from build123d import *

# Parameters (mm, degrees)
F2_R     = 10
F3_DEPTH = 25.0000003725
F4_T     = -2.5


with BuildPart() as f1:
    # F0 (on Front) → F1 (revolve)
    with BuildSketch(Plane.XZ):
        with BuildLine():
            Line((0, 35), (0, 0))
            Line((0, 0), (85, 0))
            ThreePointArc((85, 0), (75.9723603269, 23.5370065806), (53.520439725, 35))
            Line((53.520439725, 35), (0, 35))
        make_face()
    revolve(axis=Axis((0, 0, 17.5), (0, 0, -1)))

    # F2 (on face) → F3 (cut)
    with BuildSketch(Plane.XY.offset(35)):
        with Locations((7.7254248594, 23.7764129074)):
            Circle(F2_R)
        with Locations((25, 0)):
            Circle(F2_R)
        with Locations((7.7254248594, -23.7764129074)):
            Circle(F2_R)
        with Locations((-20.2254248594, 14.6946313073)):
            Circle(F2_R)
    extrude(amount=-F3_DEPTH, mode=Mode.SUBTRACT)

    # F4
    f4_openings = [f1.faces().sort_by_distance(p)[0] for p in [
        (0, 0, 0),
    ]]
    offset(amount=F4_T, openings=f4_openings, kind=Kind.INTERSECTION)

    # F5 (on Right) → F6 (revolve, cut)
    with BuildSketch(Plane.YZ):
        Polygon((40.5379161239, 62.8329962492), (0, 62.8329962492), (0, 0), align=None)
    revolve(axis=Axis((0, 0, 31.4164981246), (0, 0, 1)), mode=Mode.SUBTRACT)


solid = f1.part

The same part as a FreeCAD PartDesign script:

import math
import FreeCAD as App
import Part
import Sketcher
from FreeCAD import Vector


def faces_at(feature, points):
    """Names of the faces that lie closest to the given points."""
    faces = feature.Shape.Faces
    near = lambda p: min(range(len(faces)), key=lambda i: faces[i].distToShape(Part.Vertex(*p))[0])
    return sorted({f"Face{near(p) + 1}" for p in points})

doc = App.newDocument("Part")
body = doc.addObject("PartDesign::Body", "Body")

sketch1 = doc.addObject("Sketcher::SketchObject", "Sketch")
body.addObject(sketch1)
sketch1.AttachmentSupport = (doc.XZ_Plane, [""])
sketch1.MapMode = "FlatFace"
sketch1.addGeometry(Part.LineSegment(Vector(0, 35, 0), Vector(0, 0, 0)), False)
sketch1.addGeometry(Part.LineSegment(Vector(0, 0, 0), Vector(85, 0, 0)), False)
sketch1.addGeometry(Part.ArcOfCircle(Part.Circle(Vector(50, 0, 0), Vector(0, 0, 1), 35), math.radians(0), math.radians(84)), False)
sketch1.addGeometry(Part.LineSegment(Vector(54, 35, 0), Vector(0, 35, 0)), False)
sketch1.addConstraint(Sketcher.Constraint("Coincident", 0, 2, 1, 1))
sketch1.addConstraint(Sketcher.Constraint("Coincident", 1, 2, 2, 1))
sketch1.addConstraint(Sketcher.Constraint("Coincident", 2, 2, 3, 1))
sketch1.addConstraint(Sketcher.Constraint("Coincident", 3, 2, 0, 1))
sketch1.addConstraint(Sketcher.Constraint("Vertical", 0))
sketch1.addConstraint(Sketcher.Constraint("Horizontal", 1))
sketch1.addConstraint(Sketcher.Constraint("Horizontal", 3))
sketch1.addConstraint(Sketcher.Constraint("Coincident", 0, 2, -1, 1))
sketch1.addConstraint(Sketcher.Constraint("PointOnObject", 2, 3, -1))
sketch1.addConstraint(Sketcher.Constraint("DistanceX", 1, 1, 1, 2, 85.0))
sketch1.addConstraint(Sketcher.Constraint("DistanceY", 0, 2, 0, 1, 35.0))
sketch1.addConstraint(Sketcher.Constraint("Radius", 2, 35.19685))
revolution = doc.addObject("PartDesign::Revolution", "Revolution")
body.addObject(revolution)
revolution.Profile = sketch1
revolution.ReferenceAxis = (sketch1, ["V_Axis"])
revolution.Angle = 360

sketch2 = doc.addObject("Sketcher::SketchObject", "Sketch001")
body.addObject(sketch2)
sketch2.AttachmentSupport = (doc.XY_Plane, [""])
sketch2.MapMode = "FlatFace"
sketch2.AttachmentOffset = App.Placement(Vector(0, 0, 35), App.Rotation())
sketch2.addGeometry(Part.Circle(Vector(8, 24, 0), Vector(0, 0, 1), 10), False)
sketch2.addGeometry(Part.Circle(Vector(25, 0, 0), Vector(0, 0, 1), 10), False)
sketch2.addGeometry(Part.Circle(Vector(8, -24, 0), Vector(0, 0, 1), 10), False)
sketch2.addGeometry(Part.Circle(Vector(-20, 15, 0), Vector(0, 0, 1), 10), False)
sketch2.addConstraint(Sketcher.Constraint("Equal", 0, 1))
sketch2.addConstraint(Sketcher.Constraint("Equal", 1, 2))
sketch2.addConstraint(Sketcher.Constraint("Equal", 2, 3))
sketch2.addConstraint(Sketcher.Constraint("Symmetric", 0, 3, 2, 3, -1))
sketch2.addConstraint(Sketcher.Constraint("PointOnObject", 1, 3, -1))
sketch2.addConstraint(Sketcher.Constraint("Diameter", 0, 20.0))
sketch2.addConstraint(Sketcher.Constraint("DistanceX", -1, 1, 1, 3, 25.0))
sketch2.addConstraint(Sketcher.Constraint("DistanceY", -1, 1, 3, 3, 14.694631))
sketch2.addConstraint(Sketcher.Constraint("DistanceX", 3, 3, 0, 3, 27.95085))
sketch2.addConstraint(Sketcher.Constraint("DistanceY", 3, 3, 0, 3, 9.081782))
sketch2.addConstraint(Sketcher.Constraint("DistanceX", -1, 1, 0, 3, 7.725425))
pocket1 = doc.addObject("PartDesign::Pocket", "Pocket")
body.addObject(pocket1)
pocket1.Profile = sketch2
pocket1.Length = 25
doc.recompute()

thickness = doc.addObject("PartDesign::Thickness", "Thickness")
body.addObject(thickness)
thickness.Base = (pocket1, faces_at(pocket1, [(0, 0, 0)]))
thickness.Value = 2.5
thickness.Reversed = True
thickness.Join = "Intersection"

sketch3 = doc.addObject("Sketcher::SketchObject", "Sketch002")
body.addObject(sketch3)
sketch3.AttachmentSupport = (doc.YZ_Plane, [""])
sketch3.MapMode = "FlatFace"
sketch3.addGeometry(Part.LineSegment(Vector(41, 63, 0), Vector(0, 63, 0)), False)
sketch3.addGeometry(Part.LineSegment(Vector(0, 63, 0), Vector(0, 0, 0)), False)
sketch3.addGeometry(Part.LineSegment(Vector(0, 0, 0), Vector(41, 63, 0)), False)
sketch3.addConstraint(Sketcher.Constraint("Coincident", 0, 2, 1, 1))
sketch3.addConstraint(Sketcher.Constraint("Coincident", 1, 2, 2, 1))
sketch3.addConstraint(Sketcher.Constraint("Coincident", 2, 2, 0, 1))
sketch3.addConstraint(Sketcher.Constraint("Horizontal", 0))
sketch3.addConstraint(Sketcher.Constraint("Vertical", 1))
sketch3.addConstraint(Sketcher.Constraint("Coincident", 1, 2, -1, 1))
sketch3.addConstraint(Sketcher.Constraint("Distance", 2, 74.77505))
sketch3.addConstraint(Sketcher.Constraint("DistanceX", 0, 2, 0, 1, 40.537916))
groove = doc.addObject("PartDesign::Groove", "Groove")
body.addObject(groove)
groove.Profile = sketch3
groove.ReferenceAxis = (sketch3, ["V_Axis"])
groove.Angle = 360

doc.recompute()
